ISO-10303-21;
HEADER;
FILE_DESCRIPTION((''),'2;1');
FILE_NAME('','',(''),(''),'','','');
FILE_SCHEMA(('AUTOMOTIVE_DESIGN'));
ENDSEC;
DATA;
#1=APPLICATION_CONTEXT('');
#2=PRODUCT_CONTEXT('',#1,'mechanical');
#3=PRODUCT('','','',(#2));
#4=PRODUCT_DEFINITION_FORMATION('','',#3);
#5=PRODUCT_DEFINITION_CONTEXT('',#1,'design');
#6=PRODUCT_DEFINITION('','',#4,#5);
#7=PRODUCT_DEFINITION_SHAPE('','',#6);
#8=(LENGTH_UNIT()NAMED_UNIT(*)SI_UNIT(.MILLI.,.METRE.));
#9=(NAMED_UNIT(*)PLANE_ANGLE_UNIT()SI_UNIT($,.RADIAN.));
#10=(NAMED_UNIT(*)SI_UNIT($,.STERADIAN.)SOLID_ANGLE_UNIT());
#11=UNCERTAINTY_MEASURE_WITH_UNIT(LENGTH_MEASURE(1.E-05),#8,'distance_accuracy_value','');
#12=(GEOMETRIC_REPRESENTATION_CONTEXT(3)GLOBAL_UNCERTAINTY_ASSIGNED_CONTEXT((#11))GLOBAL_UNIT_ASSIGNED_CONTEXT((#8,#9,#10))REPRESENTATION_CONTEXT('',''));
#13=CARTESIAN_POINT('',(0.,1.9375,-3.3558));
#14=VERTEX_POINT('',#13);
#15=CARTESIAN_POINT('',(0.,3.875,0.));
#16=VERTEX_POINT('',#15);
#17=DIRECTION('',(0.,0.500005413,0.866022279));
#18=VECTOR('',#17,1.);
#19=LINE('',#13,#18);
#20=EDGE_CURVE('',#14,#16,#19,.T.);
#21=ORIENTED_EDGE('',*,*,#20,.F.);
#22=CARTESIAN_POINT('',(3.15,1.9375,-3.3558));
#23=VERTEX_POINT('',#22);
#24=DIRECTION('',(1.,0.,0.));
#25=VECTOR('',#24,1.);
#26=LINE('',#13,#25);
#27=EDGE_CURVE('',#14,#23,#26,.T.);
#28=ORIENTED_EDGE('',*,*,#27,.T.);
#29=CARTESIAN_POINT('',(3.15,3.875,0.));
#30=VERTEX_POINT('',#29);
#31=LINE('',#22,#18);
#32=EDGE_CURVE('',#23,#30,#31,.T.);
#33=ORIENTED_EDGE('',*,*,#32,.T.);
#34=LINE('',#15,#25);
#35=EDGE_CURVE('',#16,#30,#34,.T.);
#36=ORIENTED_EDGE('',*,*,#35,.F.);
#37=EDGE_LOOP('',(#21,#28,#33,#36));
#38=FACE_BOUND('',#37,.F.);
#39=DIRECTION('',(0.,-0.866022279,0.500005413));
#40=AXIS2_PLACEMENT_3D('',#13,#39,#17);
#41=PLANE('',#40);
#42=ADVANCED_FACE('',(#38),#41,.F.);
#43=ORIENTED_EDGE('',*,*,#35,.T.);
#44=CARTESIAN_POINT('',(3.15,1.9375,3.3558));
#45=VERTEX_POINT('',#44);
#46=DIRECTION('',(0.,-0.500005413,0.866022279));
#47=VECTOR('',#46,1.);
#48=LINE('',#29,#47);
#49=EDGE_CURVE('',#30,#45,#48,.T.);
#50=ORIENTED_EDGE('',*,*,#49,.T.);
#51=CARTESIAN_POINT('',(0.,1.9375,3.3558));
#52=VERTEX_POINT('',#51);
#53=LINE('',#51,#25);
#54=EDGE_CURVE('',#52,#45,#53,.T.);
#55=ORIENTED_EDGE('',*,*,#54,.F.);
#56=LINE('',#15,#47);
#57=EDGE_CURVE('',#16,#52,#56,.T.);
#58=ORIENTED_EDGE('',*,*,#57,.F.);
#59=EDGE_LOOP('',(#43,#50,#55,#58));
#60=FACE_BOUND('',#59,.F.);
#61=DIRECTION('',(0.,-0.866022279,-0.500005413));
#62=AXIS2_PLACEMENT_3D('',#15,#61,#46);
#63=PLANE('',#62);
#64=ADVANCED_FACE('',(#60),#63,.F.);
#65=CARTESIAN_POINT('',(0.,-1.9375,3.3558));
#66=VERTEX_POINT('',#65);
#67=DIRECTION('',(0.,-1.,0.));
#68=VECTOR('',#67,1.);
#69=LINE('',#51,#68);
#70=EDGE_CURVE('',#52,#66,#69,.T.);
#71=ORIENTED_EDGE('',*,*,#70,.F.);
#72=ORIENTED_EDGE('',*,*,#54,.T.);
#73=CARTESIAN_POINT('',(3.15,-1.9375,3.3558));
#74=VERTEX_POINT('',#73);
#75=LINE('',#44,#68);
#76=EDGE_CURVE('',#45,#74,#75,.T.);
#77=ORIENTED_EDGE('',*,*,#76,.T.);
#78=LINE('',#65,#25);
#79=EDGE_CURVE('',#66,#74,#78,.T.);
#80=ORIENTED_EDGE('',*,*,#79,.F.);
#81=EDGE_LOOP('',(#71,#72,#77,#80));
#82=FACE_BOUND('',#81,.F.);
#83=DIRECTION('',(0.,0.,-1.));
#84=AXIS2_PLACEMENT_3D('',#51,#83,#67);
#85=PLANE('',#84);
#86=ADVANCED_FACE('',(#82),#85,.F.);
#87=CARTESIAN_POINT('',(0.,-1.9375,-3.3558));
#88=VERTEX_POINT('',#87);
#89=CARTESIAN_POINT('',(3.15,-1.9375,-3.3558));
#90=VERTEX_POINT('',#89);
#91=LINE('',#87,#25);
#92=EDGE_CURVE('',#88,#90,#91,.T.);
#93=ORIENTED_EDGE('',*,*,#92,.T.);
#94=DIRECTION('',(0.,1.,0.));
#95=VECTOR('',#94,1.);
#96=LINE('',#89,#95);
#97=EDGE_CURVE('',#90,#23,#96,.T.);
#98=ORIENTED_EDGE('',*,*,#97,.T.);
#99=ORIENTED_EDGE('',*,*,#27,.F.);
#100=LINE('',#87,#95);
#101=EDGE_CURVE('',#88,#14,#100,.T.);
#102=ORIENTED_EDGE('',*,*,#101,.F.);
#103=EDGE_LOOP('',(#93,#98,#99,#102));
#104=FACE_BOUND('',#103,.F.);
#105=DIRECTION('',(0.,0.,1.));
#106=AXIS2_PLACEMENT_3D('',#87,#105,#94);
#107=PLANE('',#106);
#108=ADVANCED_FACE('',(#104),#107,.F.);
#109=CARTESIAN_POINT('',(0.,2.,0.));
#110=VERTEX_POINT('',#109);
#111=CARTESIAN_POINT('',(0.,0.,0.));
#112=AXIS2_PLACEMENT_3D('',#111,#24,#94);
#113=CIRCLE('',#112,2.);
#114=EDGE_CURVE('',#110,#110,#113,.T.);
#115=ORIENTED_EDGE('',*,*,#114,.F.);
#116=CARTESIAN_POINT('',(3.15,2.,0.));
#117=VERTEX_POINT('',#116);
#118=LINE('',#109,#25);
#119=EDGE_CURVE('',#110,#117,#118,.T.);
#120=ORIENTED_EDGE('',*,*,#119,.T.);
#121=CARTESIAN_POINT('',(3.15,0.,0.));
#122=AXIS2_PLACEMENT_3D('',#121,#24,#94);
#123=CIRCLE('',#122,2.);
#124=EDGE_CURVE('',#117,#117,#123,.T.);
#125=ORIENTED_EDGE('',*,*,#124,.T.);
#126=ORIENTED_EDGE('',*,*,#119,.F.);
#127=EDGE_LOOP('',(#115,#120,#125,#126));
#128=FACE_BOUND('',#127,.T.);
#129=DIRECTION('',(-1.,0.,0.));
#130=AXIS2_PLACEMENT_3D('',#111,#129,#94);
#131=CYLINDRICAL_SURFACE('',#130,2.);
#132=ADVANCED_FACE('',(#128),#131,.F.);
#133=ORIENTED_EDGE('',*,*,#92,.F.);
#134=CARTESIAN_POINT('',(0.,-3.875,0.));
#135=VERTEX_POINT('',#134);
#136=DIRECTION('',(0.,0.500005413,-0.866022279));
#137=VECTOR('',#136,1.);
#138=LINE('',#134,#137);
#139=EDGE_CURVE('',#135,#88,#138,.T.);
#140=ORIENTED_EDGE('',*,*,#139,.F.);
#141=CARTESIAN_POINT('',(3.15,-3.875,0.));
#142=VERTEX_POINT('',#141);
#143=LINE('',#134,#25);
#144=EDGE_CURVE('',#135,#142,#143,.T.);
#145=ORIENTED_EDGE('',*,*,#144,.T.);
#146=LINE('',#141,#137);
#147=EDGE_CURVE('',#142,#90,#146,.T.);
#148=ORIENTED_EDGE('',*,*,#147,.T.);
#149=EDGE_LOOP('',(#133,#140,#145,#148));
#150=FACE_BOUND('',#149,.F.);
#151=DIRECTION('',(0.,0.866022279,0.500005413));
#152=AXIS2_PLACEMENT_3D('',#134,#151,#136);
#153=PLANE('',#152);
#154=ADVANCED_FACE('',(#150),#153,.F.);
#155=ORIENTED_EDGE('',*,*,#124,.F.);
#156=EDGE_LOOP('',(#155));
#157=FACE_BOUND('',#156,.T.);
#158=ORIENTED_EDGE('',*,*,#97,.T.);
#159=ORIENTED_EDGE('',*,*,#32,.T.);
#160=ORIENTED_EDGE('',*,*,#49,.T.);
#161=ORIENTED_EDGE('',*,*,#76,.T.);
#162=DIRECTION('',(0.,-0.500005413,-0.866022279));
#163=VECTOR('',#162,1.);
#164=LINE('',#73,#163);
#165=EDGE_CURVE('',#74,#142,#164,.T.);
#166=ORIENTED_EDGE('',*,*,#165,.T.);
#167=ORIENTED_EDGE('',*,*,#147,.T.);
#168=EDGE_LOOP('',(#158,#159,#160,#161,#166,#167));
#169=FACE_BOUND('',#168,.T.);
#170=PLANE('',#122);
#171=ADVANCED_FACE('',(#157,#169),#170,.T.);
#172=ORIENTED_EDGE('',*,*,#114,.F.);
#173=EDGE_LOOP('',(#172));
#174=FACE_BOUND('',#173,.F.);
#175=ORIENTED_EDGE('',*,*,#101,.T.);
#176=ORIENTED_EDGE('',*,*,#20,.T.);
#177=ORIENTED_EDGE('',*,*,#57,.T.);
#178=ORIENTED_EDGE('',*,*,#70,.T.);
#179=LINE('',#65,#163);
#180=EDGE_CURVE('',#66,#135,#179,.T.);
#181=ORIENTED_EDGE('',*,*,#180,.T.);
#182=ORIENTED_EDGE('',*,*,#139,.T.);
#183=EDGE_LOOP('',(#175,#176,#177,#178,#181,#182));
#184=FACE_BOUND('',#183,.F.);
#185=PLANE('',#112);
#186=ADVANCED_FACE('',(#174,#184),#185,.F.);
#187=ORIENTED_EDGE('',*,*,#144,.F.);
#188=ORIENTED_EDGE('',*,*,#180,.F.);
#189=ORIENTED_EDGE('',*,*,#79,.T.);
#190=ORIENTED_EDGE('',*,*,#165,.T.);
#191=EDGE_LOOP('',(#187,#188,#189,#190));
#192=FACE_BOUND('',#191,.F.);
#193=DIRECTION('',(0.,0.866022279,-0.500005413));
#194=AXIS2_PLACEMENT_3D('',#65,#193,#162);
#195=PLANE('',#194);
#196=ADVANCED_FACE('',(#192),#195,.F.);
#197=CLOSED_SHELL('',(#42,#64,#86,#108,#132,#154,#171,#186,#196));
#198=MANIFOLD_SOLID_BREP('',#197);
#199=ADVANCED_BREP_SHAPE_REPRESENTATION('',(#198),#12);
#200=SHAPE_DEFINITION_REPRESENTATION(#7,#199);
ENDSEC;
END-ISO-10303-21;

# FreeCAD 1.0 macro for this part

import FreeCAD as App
import Part
import Sketcher
Q = App.Units.Quantity


def add_polygon(sketch, points):
    """Adds a closed chain of lines whose ends are joined by coincident constraints."""
    first, n = sketch.GeometryCount, len(points)
    for a, b in zip(points, points[1:] + points[:1]):
        sketch.addGeometry(Part.LineSegment(App.Vector(*a, 0), App.Vector(*b, 0)), False)
    for i in range(n):
        sketch.addConstraint(Sketcher.Constraint("Coincident", first + i, 2, first + (i + 1) % n, 1))

doc = App.newDocument("Part")
body = doc.addObject("PartDesign::Body", "Body")

# Sketch on YZ plane
sketch1 = body.newObject("Sketcher::SketchObject", "Sketch")
sketch1.AttachmentSupport = (doc.getObject("YZ_Plane"), [""])
sketch1.MapMode = "FlatFace"
add_polygon(sketch1, [(1.9, -3.4), (3.9, 0), (1.9, 3.4), (-1.9, 3.4), (-3.9, 0), (-1.9, -3.4)])  # lines 0-5
sketch1.addGeometry(Part.Circle(App.Vector(0, 0, 0), App.Vector(0, 0, 1), 2), False)  # 6
sketch1.addConstraint([
    Sketcher.Constraint("Horizontal", 2),
    Sketcher.Constraint("Horizontal", 5),
    Sketcher.Constraint("Coincident", 6, 3, -1, 1),
    Sketcher.Constraint("Symmetric", 0, 2, 3, 2, -1, 1),
    Sketcher.Constraint("Symmetric", 1, 2, 4, 2, -1, 1),
    Sketcher.Constraint("PointOnObject", 0, 2, -1),
    Sketcher.Constraint("Parallel", 0, 3),
    Sketcher.Constraint("Vertical", 2, 2, 4, 2),
    Sketcher.Constraint("Diameter", 6, 4.0),
    Sketcher.Constraint("DistanceX", 2, 2, 2, 1, 3.875),
    Sketcher.Constraint("Angle", 0, Q("59.9996 deg")),
    Sketcher.Constraint("Distance", 0, 3.875),
])
pad1 = body.newObject("PartDesign::Pad", "Pad")
pad1.Profile = sketch1
pad1.Length = 3.15

doc.recompute()
